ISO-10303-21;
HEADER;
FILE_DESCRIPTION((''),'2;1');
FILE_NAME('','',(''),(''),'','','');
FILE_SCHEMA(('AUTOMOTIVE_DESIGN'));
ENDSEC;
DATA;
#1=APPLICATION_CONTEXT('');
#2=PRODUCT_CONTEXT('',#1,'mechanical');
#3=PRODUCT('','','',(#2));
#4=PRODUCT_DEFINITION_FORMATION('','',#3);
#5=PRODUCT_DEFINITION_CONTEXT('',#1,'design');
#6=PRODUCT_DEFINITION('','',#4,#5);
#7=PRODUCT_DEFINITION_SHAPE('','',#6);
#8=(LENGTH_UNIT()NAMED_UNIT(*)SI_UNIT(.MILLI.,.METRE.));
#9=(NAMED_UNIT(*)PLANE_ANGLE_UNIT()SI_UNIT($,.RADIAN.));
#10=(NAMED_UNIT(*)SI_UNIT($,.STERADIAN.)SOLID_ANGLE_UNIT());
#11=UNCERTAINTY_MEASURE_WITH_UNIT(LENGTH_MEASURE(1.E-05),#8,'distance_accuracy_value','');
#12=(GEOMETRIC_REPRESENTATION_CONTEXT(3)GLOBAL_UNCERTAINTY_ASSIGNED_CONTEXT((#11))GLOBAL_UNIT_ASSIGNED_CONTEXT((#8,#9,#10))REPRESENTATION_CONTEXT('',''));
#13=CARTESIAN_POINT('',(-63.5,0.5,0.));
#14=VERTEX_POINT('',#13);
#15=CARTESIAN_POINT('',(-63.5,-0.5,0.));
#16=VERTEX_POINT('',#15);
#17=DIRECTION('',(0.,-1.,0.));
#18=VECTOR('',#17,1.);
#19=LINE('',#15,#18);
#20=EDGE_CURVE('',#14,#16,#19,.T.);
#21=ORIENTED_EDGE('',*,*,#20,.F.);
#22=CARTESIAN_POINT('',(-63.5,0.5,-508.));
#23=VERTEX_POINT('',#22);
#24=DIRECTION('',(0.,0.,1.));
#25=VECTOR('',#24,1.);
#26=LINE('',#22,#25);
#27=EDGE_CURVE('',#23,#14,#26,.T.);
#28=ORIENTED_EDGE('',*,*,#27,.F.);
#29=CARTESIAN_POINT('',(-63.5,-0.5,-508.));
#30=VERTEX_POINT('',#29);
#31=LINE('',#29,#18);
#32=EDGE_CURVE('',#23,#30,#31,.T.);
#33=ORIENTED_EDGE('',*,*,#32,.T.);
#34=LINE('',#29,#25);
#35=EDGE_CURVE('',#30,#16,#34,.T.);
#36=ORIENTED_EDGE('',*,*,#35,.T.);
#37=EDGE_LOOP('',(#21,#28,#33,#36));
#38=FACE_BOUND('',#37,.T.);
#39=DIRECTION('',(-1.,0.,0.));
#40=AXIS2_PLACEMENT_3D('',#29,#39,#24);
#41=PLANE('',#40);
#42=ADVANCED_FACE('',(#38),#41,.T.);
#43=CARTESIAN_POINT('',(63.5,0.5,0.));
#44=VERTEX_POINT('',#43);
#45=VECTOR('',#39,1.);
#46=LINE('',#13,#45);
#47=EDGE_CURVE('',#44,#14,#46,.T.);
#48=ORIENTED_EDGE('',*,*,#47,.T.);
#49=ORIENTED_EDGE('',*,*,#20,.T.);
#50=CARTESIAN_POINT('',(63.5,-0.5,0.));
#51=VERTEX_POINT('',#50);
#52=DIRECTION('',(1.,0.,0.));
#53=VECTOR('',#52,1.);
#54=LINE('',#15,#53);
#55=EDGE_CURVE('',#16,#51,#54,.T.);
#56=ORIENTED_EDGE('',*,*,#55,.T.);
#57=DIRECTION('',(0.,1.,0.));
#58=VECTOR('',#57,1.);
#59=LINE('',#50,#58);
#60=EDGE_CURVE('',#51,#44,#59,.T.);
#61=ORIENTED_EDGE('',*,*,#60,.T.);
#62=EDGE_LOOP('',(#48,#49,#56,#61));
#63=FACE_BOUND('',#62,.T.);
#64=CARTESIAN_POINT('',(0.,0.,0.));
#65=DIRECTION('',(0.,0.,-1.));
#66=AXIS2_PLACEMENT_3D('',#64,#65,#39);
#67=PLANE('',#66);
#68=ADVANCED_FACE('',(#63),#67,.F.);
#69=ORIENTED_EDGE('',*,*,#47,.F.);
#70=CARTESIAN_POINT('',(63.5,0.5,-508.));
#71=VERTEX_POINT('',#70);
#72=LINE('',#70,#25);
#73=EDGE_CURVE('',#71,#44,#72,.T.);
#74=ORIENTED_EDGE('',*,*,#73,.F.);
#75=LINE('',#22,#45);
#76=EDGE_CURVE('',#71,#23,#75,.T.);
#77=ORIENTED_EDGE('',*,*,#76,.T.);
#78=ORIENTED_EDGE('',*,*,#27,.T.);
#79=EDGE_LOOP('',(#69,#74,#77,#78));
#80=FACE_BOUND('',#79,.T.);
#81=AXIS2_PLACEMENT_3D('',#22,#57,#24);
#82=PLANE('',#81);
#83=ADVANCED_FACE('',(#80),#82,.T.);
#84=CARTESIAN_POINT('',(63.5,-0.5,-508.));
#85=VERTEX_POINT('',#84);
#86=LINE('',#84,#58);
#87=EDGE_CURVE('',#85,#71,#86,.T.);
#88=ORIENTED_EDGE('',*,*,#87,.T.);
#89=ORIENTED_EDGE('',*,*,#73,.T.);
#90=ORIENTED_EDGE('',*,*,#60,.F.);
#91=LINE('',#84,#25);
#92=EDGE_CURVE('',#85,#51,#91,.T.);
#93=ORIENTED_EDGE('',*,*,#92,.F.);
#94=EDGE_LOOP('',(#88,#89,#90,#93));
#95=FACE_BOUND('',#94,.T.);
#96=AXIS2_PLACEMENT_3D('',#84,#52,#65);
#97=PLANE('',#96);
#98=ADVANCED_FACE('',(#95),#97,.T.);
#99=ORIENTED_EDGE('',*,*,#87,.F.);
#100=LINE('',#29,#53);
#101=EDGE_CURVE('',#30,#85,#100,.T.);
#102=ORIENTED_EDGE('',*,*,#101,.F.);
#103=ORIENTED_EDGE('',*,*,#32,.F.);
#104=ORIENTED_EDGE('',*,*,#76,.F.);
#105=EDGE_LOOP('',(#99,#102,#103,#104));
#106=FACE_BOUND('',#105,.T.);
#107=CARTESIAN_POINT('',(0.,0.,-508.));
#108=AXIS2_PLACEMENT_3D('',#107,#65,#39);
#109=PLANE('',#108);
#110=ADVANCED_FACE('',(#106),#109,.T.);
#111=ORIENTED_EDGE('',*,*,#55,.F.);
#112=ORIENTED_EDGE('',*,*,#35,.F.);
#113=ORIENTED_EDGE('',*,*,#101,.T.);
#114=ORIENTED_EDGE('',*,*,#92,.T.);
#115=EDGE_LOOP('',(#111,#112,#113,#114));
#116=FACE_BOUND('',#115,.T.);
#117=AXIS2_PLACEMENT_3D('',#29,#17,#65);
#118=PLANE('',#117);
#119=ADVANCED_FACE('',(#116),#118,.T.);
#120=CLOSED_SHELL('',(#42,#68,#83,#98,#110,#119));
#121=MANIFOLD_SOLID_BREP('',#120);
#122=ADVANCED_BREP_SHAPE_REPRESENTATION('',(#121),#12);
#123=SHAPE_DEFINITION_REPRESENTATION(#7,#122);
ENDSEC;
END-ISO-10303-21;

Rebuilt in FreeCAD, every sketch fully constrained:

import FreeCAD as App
import Part
import Sketcher

V = App.Vector
Q = App.Units.Quantity

doc = App.newDocument("Part")
params = doc.addObject("Spreadsheet::Sheet", "Params")
for row, (alias, value) in enumerate([
    ("sketch1_width", "5 in"),
    ("pad1_length", "20 in"),
], start=1):
    params.set(f"A{row}", alias)
    params.set(f"B{row}", "=" + value)
    params.setAlias(f"B{row}", alias)

body = doc.addObject("PartDesign::Body", "Body")

# Sketch on XY plane
sketch1 = body.newObject("Sketcher::SketchObject", "Sketch")
sketch1.AttachmentSupport = (doc.getObject("XY_Plane"), [""])
sketch1.MapMode = "FlatFace"
sketch1.addGeometry([
    Part.LineSegment(V(-63.5, 0.5, 0), V(-63.5, -0.5, 0)),
    Part.LineSegment(V(-63.5, -0.5, 0), V(63.5, -0.5, 0)),
    Part.LineSegment(V(63.5, -0.5, 0), V(63.5, 0.5, 0)),
    Part.LineSegment(V(63.5, 0.5, 0), V(-63.5, 0.5, 0)),
], False)
sketch1.addConstraint([
    Sketcher.Constraint("Coincident", 0, 2, 1, 1),
    Sketcher.Constraint("Coincident", 1, 2, 2, 1),
    Sketcher.Constraint("Coincident", 2, 2, 3, 1),
    Sketcher.Constraint("Coincident", 3, 2, 0, 1),
    Sketcher.Constraint("Vertical", 0),
    Sketcher.Constraint("Horizontal", 1),
    Sketcher.Constraint("Vertical", 2),
    Sketcher.Constraint("Horizontal", 3),
    Sketcher.Constraint("Symmetric", 0, 2, 2, 2, -1, 1),
    Sketcher.Constraint("DistanceX", 1, 1, 1, 2, Q("5 in")),
    Sketcher.Constraint("DistanceY", 0, 2, 0, 1, 1.0),
])
sketch1.setExpression("Constraints[9]", "Params.sketch1_width")
pad1 = body.newObject("PartDesign::Pad", "Pad")
pad1.Profile = sketch1
pad1.setExpression("Length", "Params.pad1_length")
pad1.Reversed = True

doc.recompute()
